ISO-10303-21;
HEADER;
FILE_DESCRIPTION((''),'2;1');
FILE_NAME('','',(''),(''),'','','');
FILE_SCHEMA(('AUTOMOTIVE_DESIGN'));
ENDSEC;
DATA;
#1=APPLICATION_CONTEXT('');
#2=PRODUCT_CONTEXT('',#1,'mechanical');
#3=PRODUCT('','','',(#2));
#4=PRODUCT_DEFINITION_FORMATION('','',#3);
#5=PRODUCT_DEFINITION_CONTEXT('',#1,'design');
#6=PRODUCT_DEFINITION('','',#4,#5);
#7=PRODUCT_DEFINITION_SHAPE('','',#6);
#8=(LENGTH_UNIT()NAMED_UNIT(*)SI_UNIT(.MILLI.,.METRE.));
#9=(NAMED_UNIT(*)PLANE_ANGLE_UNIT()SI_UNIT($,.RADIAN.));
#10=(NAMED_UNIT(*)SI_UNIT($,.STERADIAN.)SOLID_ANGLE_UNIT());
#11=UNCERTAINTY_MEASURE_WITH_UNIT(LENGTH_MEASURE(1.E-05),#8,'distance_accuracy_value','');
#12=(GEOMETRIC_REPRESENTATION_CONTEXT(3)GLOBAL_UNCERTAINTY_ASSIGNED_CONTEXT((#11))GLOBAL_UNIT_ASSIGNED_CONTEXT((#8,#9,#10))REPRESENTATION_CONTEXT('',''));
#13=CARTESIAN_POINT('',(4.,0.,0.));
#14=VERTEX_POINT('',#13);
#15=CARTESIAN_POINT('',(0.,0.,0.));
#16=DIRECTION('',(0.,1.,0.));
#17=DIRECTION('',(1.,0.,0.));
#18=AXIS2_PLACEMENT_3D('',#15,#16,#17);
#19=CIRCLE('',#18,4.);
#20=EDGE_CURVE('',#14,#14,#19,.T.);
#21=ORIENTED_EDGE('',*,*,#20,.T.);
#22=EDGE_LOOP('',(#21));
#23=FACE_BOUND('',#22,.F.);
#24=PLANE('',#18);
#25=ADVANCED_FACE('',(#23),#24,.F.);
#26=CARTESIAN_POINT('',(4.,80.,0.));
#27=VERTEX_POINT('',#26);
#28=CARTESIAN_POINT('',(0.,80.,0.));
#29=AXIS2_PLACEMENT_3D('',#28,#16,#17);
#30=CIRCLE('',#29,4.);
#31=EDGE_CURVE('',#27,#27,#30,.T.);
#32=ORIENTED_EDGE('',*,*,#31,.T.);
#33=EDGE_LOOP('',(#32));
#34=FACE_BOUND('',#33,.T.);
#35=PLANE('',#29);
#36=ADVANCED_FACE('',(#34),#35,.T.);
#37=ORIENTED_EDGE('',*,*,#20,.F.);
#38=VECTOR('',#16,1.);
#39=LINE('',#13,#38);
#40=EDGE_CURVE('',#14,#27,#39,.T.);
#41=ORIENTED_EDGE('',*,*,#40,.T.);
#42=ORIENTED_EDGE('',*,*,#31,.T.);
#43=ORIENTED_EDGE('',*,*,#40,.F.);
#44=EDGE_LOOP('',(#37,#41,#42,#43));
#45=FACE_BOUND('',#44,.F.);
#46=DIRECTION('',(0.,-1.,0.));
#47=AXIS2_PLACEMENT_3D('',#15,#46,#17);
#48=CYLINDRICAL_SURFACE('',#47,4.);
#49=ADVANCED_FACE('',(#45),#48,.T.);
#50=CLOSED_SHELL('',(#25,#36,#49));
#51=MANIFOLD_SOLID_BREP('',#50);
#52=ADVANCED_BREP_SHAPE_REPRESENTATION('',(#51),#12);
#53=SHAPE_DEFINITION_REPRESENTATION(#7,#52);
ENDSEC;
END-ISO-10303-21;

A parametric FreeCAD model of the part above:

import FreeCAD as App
import Part
import Sketcher

V = App.Vector

doc = App.newDocument("Part")
params = doc.addObject("Spreadsheet::Sheet", "Params")
for row, (alias, value) in enumerate([
    ("sketch1_diameter", "8 mm"),
    ("pad1_length", "80 mm"),
], start=1):
    params.set(f"A{row}", alias)
    params.set(f"B{row}", "=" + value)
    params.setAlias(f"B{row}", alias)

body = doc.addObject("PartDesign::Body", "Body")

sketch1 = doc.addObject("Sketcher::SketchObject", "Sketch")
body.addObject(sketch1)
sketch1.AttachmentSupport = (doc.XZ_Plane, [""])
sketch1.MapMode = "FlatFace"
sketch1.addGeometry(Part.Circle(V(0, 0, 0), V(0, 0, 1), 4), False)
sketch1.addConstraint(Sketcher.Constraint("Coincident", 0, 3, -1, 1))
sketch1.addConstraint(Sketcher.Constraint("Diameter", 0, 8.0))
sketch1.setExpression("Constraints[1]", "Params.sketch1_diameter")
pad1 = doc.addObject("PartDesign::Pad", "Pad")
body.addObject(pad1)
pad1.Profile = sketch1
pad1.setExpression("Length", "Params.pad1_length")
pad1.Reversed = True

doc.recompute()
